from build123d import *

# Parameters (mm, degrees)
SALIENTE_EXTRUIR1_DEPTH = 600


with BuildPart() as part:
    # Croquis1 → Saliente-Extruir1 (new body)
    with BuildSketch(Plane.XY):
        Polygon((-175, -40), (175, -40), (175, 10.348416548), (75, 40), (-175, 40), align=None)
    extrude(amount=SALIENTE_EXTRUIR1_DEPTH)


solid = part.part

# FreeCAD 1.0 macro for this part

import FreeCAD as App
import Part
import Sketcher
Q = App.Units.Quantity


def add_polygon(sketch, points):
    """Adds a closed chain of lines whose ends are joined by coincident constraints."""
    first, n = sketch.GeometryCount, len(points)
    for a, b in zip(points, points[1:] + points[:1]):
        sketch.addGeometry(Part.LineSegment(App.Vector(*a, 0), App.Vector(*b, 0)), False)
    for i in range(n):
        sketch.addConstraint(Sketcher.Constraint("Coincident", first + i, 2, first + (i + 1) % n, 1))

doc = App.newDocument("Part")
body = doc.addObject("PartDesign::Body", "Body")

# Sketch on XY plane
sketch1 = body.newObject("Sketcher::SketchObject", "Sketch")
sketch1.AttachmentSupport = (doc.getObject("XY_Plane"), [""])
sketch1.MapMode = "FlatFace"
add_polygon(sketch1, [(-175, -40), (175, -40), (175, 10), (75, 40), (-175, 40)])  # lines 0-4
sketch1.addConstraint([
    Sketcher.Constraint("Horizontal", 0),
    Sketcher.Constraint("Vertical", 1),
    Sketcher.Constraint("Horizontal", 3),
    Sketcher.Constraint("Vertical", 4),
    Sketcher.Constraint("Symmetric", 0, 2, 3, 2, -1, 1),
    Sketcher.Constraint("DistanceX", 0, 1, 0, 2, Q("350 mm")),
    Sketcher.Constraint("DistanceX", 3, 2, 3, 1, Q("250 mm")),
    Sketcher.Constraint("DistanceY", 4, 2, 4, 1, Q("80 mm")),
    Sketcher.Constraint("DistanceY", 1, 1, 1, 2, Q("50.348417 mm")),
])
pad1 = body.newObject("PartDesign::Pad", "Pad")
pad1.Profile = sketch1
pad1.Length = 600

doc.recompute()
